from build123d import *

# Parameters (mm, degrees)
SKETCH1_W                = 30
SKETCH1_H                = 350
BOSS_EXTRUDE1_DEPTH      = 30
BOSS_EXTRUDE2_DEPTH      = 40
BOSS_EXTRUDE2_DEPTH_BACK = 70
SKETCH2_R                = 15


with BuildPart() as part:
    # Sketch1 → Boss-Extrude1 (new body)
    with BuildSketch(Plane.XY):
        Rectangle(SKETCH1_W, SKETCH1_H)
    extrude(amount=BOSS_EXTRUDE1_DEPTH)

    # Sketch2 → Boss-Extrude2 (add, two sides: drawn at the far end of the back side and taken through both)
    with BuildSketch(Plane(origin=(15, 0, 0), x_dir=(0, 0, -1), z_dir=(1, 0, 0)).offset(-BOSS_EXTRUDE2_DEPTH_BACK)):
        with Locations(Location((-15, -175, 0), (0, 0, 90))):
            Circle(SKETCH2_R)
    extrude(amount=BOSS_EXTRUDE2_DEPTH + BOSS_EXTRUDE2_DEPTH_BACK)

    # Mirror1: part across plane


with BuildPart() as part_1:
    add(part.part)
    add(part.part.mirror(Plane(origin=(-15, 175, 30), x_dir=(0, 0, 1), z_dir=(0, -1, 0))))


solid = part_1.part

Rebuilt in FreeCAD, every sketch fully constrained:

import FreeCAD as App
import Part
import Sketcher
Q = App.Units.Quantity

doc = App.newDocument("Part")
body = doc.addObject("PartDesign::Body", "Body")

sketch1 = doc.addObject("Sketcher::SketchObject", "Sketch")
body.addObject(sketch1)
sketch1.AttachmentSupport = (doc.XY_Plane, [""])
sketch1.MapMode = "FlatFace"
sketch1.addGeometry(Part.LineSegment(App.Vector(-15, 175, 0), App.Vector(-15, -175, 0)), False)
sketch1.addGeometry(Part.LineSegment(App.Vector(-15, -175, 0), App.Vector(15, -175, 0)), False)
sketch1.addGeometry(Part.LineSegment(App.Vector(15, -175, 0), App.Vector(15, 175, 0)), False)
sketch1.addGeometry(Part.LineSegment(App.Vector(15, 175, 0), App.Vector(-15, 175, 0)), False)
sketch1.addConstraint(Sketcher.Constraint("Coincident", 0, 2, 1, 1))
sketch1.addConstraint(Sketcher.Constraint("Coincident", 1, 2, 2, 1))
sketch1.addConstraint(Sketcher.Constraint("Coincident", 2, 2, 3, 1))
sketch1.addConstraint(Sketcher.Constraint("Coincident", 3, 2, 0, 1))
sketch1.addConstraint(Sketcher.Constraint("Vertical", 0))
sketch1.addConstraint(Sketcher.Constraint("Horizontal", 1))
sketch1.addConstraint(Sketcher.Constraint("Vertical", 2))
sketch1.addConstraint(Sketcher.Constraint("Horizontal", 3))
sketch1.addConstraint(Sketcher.Constraint("Symmetric", 0, 2, 2, 2, -1, 1))
sketch1.addConstraint(Sketcher.Constraint("DistanceX", 1, 1, 1, 2, Q("30 mm")))
sketch1.addConstraint(Sketcher.Constraint("DistanceY", 0, 2, 0, 1, Q("350 mm")))
pad1 = doc.addObject("PartDesign::Pad", "Pad")
body.addObject(pad1)
pad1.Profile = sketch1
pad1.Length = 30

sketch2 = doc.addObject("Sketcher::SketchObject", "Sketch001")
body.addObject(sketch2)
sketch2.AttachmentSupport = (doc.YZ_Plane, [""])
sketch2.MapMode = "FlatFace"
sketch2.AttachmentOffset = App.Placement(App.Vector(0, 0, 15), App.Rotation())
sketch2.addGeometry(Part.Circle(App.Vector(-175, 15, 0), App.Vector(0, 0, 1), 15), False)
sketch2.addConstraint(Sketcher.Constraint("Diameter", 0, Q("30 mm")))
sketch2.addConstraint(Sketcher.Constraint("DistanceX", 0, 3, -1, 1, Q("175 mm")))
sketch2.addConstraint(Sketcher.Constraint("DistanceY", -1, 1, 0, 3, Q("15 mm")))
pad2 = doc.addObject("PartDesign::Pad", "Pad001")
body.addObject(pad2)
pad2.Profile = sketch2
pad2.Type = "TwoLengths"
pad2.Length = 40
pad2.Length2 = 70
body2 = doc.addObject("PartDesign::Body", "Body001")
doc.recompute()

body2.BaseFeature = body
doc.recompute()

mirroring = doc.addObject("Part::Mirroring", "Mirroring")
mirroring.Source = body
mirroring.Base = App.Vector(-15, 175, 30)
mirroring.Normal = App.Vector(0, -1, 0)
body3 = doc.addObject("PartDesign::Body", "Body002")
body3.BaseFeature = mirroring
boolean = doc.addObject("PartDesign::Boolean", "Boolean")
body2.addObject(boolean)
boolean.Type = "Fuse"
boolean.addObjects([body3])
doc.recompute()
mirroring.Visibility = False

doc.recompute()
